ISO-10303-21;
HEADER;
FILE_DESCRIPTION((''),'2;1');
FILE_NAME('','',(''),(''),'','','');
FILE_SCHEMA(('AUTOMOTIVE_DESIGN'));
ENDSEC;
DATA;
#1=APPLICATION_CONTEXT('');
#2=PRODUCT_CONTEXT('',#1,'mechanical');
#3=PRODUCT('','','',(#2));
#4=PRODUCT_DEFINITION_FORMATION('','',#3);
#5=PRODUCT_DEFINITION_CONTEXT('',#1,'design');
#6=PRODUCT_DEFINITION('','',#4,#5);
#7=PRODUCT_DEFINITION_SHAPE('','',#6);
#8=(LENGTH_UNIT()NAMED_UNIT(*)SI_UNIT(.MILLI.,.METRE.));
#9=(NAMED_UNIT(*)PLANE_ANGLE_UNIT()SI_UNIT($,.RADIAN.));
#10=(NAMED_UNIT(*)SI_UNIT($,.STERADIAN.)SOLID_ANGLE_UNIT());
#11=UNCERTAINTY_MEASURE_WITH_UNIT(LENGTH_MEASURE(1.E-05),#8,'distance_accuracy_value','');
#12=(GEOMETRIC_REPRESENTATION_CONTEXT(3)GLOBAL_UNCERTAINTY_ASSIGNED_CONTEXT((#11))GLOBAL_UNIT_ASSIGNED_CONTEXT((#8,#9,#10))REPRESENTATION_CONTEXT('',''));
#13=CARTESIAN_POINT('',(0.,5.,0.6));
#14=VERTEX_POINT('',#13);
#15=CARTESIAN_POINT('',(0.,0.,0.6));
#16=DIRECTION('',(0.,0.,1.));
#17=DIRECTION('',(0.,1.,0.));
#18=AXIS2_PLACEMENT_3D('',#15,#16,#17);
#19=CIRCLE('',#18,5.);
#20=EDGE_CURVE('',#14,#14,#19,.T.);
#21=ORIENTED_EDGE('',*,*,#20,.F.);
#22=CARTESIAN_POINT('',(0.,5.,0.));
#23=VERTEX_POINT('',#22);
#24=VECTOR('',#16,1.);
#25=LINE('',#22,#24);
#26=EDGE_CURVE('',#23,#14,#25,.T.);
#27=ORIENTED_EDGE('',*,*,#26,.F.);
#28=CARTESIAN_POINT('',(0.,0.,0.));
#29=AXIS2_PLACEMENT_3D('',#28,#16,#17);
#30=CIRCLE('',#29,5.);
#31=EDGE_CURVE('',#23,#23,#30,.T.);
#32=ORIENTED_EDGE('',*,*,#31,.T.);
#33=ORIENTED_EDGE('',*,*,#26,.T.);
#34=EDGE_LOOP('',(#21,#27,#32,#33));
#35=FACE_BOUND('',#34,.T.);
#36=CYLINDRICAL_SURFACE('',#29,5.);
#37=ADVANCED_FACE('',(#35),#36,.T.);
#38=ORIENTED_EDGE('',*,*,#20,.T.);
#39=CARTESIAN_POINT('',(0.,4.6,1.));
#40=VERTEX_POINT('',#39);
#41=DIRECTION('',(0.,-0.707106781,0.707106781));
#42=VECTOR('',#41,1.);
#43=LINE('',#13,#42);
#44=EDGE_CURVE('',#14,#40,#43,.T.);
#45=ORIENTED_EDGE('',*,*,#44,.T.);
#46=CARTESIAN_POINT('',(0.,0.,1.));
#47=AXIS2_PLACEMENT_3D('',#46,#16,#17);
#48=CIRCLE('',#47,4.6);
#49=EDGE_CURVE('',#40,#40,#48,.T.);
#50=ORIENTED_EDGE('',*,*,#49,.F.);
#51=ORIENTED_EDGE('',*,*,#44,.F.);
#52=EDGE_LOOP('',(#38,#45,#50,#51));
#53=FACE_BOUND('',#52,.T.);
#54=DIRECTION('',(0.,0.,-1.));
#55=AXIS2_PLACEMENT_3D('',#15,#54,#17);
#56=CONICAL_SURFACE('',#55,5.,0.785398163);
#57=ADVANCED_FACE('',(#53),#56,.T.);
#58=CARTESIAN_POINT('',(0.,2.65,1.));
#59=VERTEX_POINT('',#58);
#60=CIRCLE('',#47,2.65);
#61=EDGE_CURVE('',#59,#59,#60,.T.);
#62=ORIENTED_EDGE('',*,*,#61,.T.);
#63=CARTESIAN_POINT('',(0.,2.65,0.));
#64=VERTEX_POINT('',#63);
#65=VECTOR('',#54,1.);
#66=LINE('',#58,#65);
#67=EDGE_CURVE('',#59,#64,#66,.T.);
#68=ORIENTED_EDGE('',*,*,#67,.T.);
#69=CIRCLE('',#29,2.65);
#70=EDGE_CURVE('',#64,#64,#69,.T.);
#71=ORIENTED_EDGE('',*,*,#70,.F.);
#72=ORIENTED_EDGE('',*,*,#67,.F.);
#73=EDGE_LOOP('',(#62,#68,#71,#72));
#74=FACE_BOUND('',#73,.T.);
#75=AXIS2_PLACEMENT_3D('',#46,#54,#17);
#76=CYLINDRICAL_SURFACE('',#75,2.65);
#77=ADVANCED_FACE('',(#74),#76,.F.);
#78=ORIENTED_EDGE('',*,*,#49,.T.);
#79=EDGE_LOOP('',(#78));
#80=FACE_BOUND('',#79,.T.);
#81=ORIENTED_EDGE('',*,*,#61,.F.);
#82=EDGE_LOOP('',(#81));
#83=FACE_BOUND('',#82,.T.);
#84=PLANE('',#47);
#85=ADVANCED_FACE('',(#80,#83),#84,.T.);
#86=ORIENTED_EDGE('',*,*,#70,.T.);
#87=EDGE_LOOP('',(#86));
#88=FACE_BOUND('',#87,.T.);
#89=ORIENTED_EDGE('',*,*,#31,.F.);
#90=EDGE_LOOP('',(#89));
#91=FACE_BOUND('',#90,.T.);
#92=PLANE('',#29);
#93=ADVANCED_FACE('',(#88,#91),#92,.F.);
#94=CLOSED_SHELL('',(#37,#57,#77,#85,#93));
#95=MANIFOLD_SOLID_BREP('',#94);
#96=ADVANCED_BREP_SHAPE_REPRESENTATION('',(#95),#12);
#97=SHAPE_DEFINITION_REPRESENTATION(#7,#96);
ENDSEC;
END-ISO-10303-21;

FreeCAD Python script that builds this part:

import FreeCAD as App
import Part
import Sketcher
Q = App.Units.Quantity


def add_polygon(sketch, points):
    """Adds a closed chain of lines whose ends are joined by coincident constraints."""
    first, n = sketch.GeometryCount, len(points)
    for a, b in zip(points, points[1:] + points[:1]):
        sketch.addGeometry(Part.LineSegment(App.Vector(*a, 0), App.Vector(*b, 0)), False)
    for i in range(n):
        sketch.addConstraint(Sketcher.Constraint("Coincident", first + i, 2, first + (i + 1) % n, 1))

doc = App.newDocument("Part")
params = doc.addObject("Spreadsheet::Sheet", "Params")
for row, (alias, value) in enumerate([
    ("sketch1_height", "1 mm"),
    ("sketch1_height2", "0.6 mm"),
    ("sketch1_width", "2.35 mm"),
    ("revolution_angle", "360 deg"),
], start=1):
    params.set(f"A{row}", alias)
    params.set(f"B{row}", "=" + value)
    params.setAlias(f"B{row}", alias)

body = doc.addObject("PartDesign::Body", "Body")

sketch1 = doc.addObject("Sketcher::SketchObject", "Sketch")
body.addObject(sketch1)
sketch1.AttachmentSupport = (doc.YZ_Plane, [""])
sketch1.MapMode = "FlatFace"
add_polygon(sketch1, [(2.65, 0), (5, 0), (5, 0.6), (4.6, 1), (2.65, 1)])
sketch1.addConstraint(Sketcher.Constraint("Horizontal", 0))
sketch1.addConstraint(Sketcher.Constraint("Vertical", 1))
sketch1.addConstraint(Sketcher.Constraint("Horizontal", 3))
sketch1.addConstraint(Sketcher.Constraint("Vertical", 4))
sketch1.addConstraint(Sketcher.Constraint("PointOnObject", 0, 2, -1))
sketch1.addConstraint(Sketcher.Constraint("DistanceY", 4, 2, 4, 1, Q("1 mm")))
sketch1.addConstraint(Sketcher.Constraint("Angle", 2, Q("135 deg")))
sketch1.addConstraint(Sketcher.Constraint("DistanceY", 1, 1, 1, 2, Q("0.6 mm")))
sketch1.addConstraint(Sketcher.Constraint("DistanceX", -1, 1, 0, 2, Q("5 mm")))
sketch1.addConstraint(Sketcher.Constraint("DistanceX", 0, 1, 0, 2, Q("2.35 mm")))
sketch1.setExpression("Constraints[10]", "Params.sketch1_height")
sketch1.setExpression("Constraints[12]", "Params.sketch1_height2")
sketch1.setExpression("Constraints[14]", "Params.sketch1_width")
revolution = doc.addObject("PartDesign::Revolution", "Revolution")
body.addObject(revolution)
revolution.Profile = sketch1
revolution.ReferenceAxis = (sketch1, ["V_Axis"])
revolution.setExpression("Angle", "Params.revolution_angle")

doc.recompute()
